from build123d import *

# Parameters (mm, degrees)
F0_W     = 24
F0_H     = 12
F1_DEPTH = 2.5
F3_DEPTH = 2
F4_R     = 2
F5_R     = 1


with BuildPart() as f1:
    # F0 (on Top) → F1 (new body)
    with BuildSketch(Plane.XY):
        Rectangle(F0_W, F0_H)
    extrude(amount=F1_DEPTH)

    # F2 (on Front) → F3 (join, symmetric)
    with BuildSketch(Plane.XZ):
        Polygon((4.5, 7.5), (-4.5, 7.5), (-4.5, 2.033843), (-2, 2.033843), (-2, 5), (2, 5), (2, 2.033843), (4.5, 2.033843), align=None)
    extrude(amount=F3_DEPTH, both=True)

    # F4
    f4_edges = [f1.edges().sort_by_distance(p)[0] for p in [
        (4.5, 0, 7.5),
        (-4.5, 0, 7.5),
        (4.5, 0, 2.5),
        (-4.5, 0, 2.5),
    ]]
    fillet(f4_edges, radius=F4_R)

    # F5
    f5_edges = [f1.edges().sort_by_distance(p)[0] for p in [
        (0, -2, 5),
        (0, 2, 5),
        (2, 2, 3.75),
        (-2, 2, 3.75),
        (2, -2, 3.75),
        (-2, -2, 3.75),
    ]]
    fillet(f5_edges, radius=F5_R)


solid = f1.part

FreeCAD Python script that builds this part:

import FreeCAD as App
import Part
import Sketcher


def edges_at(feature, points):
    """Names of the edges that pass closest to the given points."""
    edges = feature.Shape.Edges
    near = lambda p: min(range(len(edges)), key=lambda i: edges[i].distToShape(Part.Vertex(*p))[0])
    return sorted({f"Edge{near(p) + 1}" for p in points})

doc = App.newDocument("Part")
body = doc.addObject("PartDesign::Body", "Body")

sketch1 = doc.addObject("Sketcher::SketchObject", "Sketch")
body.addObject(sketch1)
sketch1.AttachmentSupport = (doc.XY_Plane, [""])
sketch1.MapMode = "FlatFace"
sketch1.addGeometry([
    Part.LineSegment(App.Vector(-12, 6, 0), App.Vector(-12, -6, 0)),
    Part.LineSegment(App.Vector(-12, -6, 0), App.Vector(12, -6, 0)),
    Part.LineSegment(App.Vector(12, -6, 0), App.Vector(12, 6, 0)),
    Part.LineSegment(App.Vector(12, 6, 0), App.Vector(-12, 6, 0)),
], False)
sketch1.addConstraint([
    Sketcher.Constraint("Coincident", 0, 2, 1, 1),
    Sketcher.Constraint("Coincident", 1, 2, 2, 1),
    Sketcher.Constraint("Coincident", 2, 2, 3, 1),
    Sketcher.Constraint("Coincident", 3, 2, 0, 1),
    Sketcher.Constraint("Vertical", 0),
    Sketcher.Constraint("Horizontal", 1),
    Sketcher.Constraint("Vertical", 2),
    Sketcher.Constraint("Horizontal", 3),
    Sketcher.Constraint("Symmetric", 0, 2, 2, 2, -1, 1),
    Sketcher.Constraint("DistanceX", 1, 1, 1, 2, 24.0),
    Sketcher.Constraint("DistanceY", 0, 2, 0, 1, 12.0),
])
pad1 = doc.addObject("PartDesign::Pad", "Pad")
body.addObject(pad1)
pad1.Profile = sketch1
pad1.Length = 2.5

sketch2 = doc.addObject("Sketcher::SketchObject", "Sketch001")
body.addObject(sketch2)
sketch2.AttachmentSupport = (doc.XZ_Plane, [""])
sketch2.MapMode = "FlatFace"
sketch2.addGeometry([
    Part.LineSegment(App.Vector(4.5, 7.5, 0), App.Vector(-4.5, 7.5, 0)),
    Part.LineSegment(App.Vector(-4.5, 7.5, 0), App.Vector(-4.5, 2, 0)),
    Part.LineSegment(App.Vector(-4.5, 2, 0), App.Vector(-2, 2, 0)),
    Part.LineSegment(App.Vector(-2, 2, 0), App.Vector(-2, 5, 0)),
    Part.LineSegment(App.Vector(-2, 5, 0), App.Vector(2, 5, 0)),
    Part.LineSegment(App.Vector(2, 5, 0), App.Vector(2, 2, 0)),
    Part.LineSegment(App.Vector(2, 2, 0), App.Vector(4.5, 2, 0)),
    Part.LineSegment(App.Vector(4.5, 2, 0), App.Vector(4.5, 7.5, 0)),
], False)
sketch2.addConstraint([
    Sketcher.Constraint("Coincident", 0, 2, 1, 1),
    Sketcher.Constraint("Coincident", 1, 2, 2, 1),
    Sketcher.Constraint("Coincident", 2, 2, 3, 1),
    Sketcher.Constraint("Coincident", 3, 2, 4, 1),
    Sketcher.Constraint("Coincident", 4, 2, 5, 1),
    Sketcher.Constraint("Coincident", 5, 2, 6, 1),
    Sketcher.Constraint("Coincident", 6, 2, 7, 1),
    Sketcher.Constraint("Coincident", 7, 2, 0, 1),
    Sketcher.Constraint("Horizontal", 0),
    Sketcher.Constraint("Vertical", 1),
    Sketcher.Constraint("Horizontal", 2),
    Sketcher.Constraint("Vertical", 3),
    Sketcher.Constraint("Horizontal", 4),
    Sketcher.Constraint("Vertical", 5),
    Sketcher.Constraint("Horizontal", 6),
    Sketcher.Constraint("Vertical", 7),
    Sketcher.Constraint("Symmetric", 2, 2, 5, 2, -2),
    Sketcher.Constraint("Equal", 2, 6),
    Sketcher.Constraint("DistanceX", 0, 2, 0, 1, 9.0),
    Sketcher.Constraint("DistanceX", 4, 1, 4, 2, 4.0),
    Sketcher.Constraint("DistanceY", -1, 1, 3, 2, 5.0),
    Sketcher.Constraint("DistanceY", -1, 1, 0, 2, 7.5),
    Sketcher.Constraint("DistanceY", 1, 2, 1, 1, 5.466157),
])
pad2 = doc.addObject("PartDesign::Pad", "Pad001")
body.addObject(pad2)
pad2.Profile = sketch2
pad2.Length = 4
pad2.Midplane = True
doc.recompute()

fillet = doc.addObject("PartDesign::Fillet", "Fillet")
body.addObject(fillet)
fillet.Base = (pad2, edges_at(pad2, [
    (4.5, 0, 7.5),
    (-4.5, 0, 7.5),
    (4.5, 0, 2.5),
    (-4.5, 0, 2.5),
]))
fillet.Radius = 2
doc.recompute()

fillet2 = doc.addObject("PartDesign::Fillet", "Fillet001")
body.addObject(fillet2)
fillet2.Base = (fillet, edges_at(fillet, [
    (0, -2, 5),
    (0, 2, 5),
    (2, 2, 3.75),
    (-2, 2, 3.75),
    (2, -2, 3.75),
    (-2, -2, 3.75),
]))
fillet2.Radius = 1

doc.recompute()
